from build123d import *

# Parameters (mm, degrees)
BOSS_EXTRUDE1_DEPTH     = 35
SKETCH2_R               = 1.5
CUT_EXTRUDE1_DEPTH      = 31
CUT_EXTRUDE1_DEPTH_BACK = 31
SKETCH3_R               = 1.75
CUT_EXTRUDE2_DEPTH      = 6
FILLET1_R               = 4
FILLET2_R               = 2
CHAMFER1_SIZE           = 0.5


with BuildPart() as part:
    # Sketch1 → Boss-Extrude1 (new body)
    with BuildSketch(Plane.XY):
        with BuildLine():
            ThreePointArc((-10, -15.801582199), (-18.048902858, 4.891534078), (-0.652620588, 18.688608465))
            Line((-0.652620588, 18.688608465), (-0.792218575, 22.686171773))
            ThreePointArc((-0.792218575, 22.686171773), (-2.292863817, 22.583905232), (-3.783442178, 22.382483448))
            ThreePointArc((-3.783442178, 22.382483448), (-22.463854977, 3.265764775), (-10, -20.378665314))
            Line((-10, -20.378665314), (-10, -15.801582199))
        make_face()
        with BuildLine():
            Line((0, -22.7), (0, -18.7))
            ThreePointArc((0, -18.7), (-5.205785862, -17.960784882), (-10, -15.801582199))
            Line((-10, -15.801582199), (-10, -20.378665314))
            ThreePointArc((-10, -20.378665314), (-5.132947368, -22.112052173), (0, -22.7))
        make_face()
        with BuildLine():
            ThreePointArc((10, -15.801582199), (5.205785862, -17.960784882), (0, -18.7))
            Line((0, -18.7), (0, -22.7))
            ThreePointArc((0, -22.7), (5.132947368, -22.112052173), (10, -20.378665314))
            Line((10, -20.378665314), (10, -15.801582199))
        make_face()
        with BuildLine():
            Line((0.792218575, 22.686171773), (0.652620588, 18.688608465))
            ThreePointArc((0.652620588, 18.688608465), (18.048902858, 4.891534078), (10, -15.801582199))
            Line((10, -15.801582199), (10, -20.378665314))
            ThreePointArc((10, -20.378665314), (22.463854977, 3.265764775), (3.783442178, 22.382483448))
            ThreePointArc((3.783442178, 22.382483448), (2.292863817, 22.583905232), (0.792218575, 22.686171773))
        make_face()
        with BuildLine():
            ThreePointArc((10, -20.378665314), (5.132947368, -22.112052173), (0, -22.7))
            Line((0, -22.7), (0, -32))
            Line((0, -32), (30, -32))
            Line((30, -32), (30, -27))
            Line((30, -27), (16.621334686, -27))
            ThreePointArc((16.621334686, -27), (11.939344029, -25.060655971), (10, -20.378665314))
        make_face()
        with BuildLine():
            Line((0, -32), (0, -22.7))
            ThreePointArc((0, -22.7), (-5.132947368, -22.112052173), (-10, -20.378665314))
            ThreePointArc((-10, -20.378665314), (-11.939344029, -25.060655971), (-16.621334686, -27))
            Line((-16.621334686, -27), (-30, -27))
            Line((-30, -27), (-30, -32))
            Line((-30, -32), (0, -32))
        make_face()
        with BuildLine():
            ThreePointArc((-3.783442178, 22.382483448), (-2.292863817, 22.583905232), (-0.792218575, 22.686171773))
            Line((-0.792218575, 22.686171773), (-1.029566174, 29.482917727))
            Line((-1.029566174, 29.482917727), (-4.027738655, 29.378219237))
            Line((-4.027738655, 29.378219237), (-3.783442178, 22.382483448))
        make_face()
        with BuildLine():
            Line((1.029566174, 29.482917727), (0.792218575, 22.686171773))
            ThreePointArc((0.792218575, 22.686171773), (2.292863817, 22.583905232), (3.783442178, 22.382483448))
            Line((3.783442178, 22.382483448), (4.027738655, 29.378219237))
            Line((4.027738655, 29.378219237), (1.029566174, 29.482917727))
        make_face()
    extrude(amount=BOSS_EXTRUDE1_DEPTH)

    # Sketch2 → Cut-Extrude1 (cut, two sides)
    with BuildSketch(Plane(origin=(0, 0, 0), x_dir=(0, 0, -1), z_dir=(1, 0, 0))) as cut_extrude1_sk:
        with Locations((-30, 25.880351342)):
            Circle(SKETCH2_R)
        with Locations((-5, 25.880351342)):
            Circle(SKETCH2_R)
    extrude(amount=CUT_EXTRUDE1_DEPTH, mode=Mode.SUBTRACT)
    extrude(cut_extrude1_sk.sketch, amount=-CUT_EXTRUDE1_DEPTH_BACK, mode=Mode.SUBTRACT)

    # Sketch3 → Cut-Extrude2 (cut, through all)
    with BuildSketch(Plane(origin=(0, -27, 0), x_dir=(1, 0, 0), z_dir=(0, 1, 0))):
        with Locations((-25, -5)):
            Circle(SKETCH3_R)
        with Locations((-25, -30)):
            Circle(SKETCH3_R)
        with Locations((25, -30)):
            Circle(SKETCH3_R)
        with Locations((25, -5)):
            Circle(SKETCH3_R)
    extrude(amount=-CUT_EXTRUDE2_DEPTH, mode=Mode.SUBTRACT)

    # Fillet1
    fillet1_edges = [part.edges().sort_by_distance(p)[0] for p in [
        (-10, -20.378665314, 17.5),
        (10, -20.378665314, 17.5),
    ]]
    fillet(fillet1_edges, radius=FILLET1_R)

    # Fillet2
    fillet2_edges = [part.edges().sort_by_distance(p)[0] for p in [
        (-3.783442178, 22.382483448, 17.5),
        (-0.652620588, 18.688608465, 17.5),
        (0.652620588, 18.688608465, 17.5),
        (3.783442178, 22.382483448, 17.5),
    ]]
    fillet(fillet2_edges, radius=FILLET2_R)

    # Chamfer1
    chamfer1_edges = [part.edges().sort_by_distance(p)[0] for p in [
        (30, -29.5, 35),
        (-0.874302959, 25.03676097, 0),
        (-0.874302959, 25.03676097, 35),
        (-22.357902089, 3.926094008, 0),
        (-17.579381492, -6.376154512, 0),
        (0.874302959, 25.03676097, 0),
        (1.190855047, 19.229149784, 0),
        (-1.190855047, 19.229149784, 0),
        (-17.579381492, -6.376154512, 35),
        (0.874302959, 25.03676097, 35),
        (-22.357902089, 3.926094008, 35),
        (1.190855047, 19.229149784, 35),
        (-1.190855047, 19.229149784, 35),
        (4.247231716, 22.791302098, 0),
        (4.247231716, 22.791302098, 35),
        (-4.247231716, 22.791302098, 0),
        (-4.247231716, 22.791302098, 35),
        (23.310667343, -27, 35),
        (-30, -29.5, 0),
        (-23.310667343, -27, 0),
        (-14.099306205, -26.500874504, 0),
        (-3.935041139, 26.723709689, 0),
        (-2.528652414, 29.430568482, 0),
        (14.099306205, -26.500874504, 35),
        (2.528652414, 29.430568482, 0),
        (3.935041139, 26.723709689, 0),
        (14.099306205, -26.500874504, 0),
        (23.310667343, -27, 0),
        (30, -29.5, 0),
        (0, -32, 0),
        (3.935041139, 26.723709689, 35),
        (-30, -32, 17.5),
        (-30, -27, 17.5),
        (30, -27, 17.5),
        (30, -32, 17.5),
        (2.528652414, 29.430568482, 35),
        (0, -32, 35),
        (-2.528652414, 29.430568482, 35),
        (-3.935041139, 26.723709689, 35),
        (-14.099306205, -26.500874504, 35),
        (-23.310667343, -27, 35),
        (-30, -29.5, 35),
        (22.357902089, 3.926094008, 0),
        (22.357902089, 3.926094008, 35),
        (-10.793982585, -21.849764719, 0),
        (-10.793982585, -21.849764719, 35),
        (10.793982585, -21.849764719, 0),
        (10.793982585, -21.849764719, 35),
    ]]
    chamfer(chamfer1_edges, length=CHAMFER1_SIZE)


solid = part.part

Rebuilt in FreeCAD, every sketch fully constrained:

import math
import FreeCAD as App
import Part
import Sketcher
from FreeCAD import Vector
Q = App.Units.Quantity


def edges_at(feature, points):
    """Names of the edges that pass closest to the given points."""
    edges = feature.Shape.Edges
    near = lambda p: min(range(len(edges)), key=lambda i: edges[i].distToShape(Part.Vertex(*p))[0])
    return sorted({f"Edge{near(p) + 1}" for p in points})

doc = App.newDocument("Part")
body = doc.addObject("PartDesign::Body", "Body")

sketch1 = doc.addObject("Sketcher::SketchObject", "Sketch")
body.addObject(sketch1)
sketch1.AttachmentSupport = (doc.XY_Plane, [""])
sketch1.MapMode = "FlatFace"
sketch1.addGeometry([
    Part.ArcOfCircle(Part.Circle(Vector(0, 0, 0), Vector(0, 0, 1), 18.7), math.radians(92), math.radians(237.672407)),
    Part.LineSegment(Vector(-0.652621, 18.688608, 0), Vector(-0.792219, 22.686172, 0)),
    Part.LineSegment(Vector(-0.792219, 22.686172, 0), Vector(-1.029566, 29.482918, 0)),
    Part.LineSegment(Vector(-1.029566, 29.482918, 0), Vector(-4.027739, 29.378219, 0)),
    Part.LineSegment(Vector(-4.027739, 29.378219, 0), Vector(-3.783442, 22.382483, 0)),
    Part.ArcOfCircle(Part.Circle(Vector(0, 0, 0), Vector(0, 0, 1), 22.7), math.radians(99.594347), math.radians(243.862385)),
    Part.ArcOfCircle(Part.Circle(Vector(-16.621335, -20.378665, 0), Vector(0, 0, 1), 6.621335), math.radians(-90), math.radians(0)),
    Part.LineSegment(Vector(-16.621335, -27, 0), Vector(-30, -27, 0)),
    Part.LineSegment(Vector(-30, -27, 0), Vector(-30, -32, 0)),
    Part.LineSegment(Vector(-30, -32, 0), Vector(30, -32, 0)),
    Part.LineSegment(Vector(30, -32, 0), Vector(30, -27, 0)),
    Part.LineSegment(Vector(30, -27, 0), Vector(16.621335, -27, 0)),
    Part.ArcOfCircle(Part.Circle(Vector(16.621335, -20.378665, 0), Vector(0, 0, 1), 6.621335), math.radians(180), math.radians(270)),
    Part.ArcOfCircle(Part.Circle(Vector(0, 0, 0), Vector(0, 0, 1), 22.7), math.radians(-63.862385), math.radians(80.405653)),
    Part.LineSegment(Vector(3.783442, 22.382483, 0), Vector(4.027739, 29.378219, 0)),
    Part.LineSegment(Vector(4.027739, 29.378219, 0), Vector(1.029566, 29.482918, 0)),
    Part.LineSegment(Vector(1.029566, 29.482918, 0), Vector(0.792219, 22.686172, 0)),
    Part.LineSegment(Vector(0.792219, 22.686172, 0), Vector(0.652621, 18.688608, 0)),
    Part.ArcOfCircle(Part.Circle(Vector(0, 0, 0), Vector(0, 0, 1), 18.7), math.radians(-57.672407), math.radians(88)),
    Part.ArcOfCircle(Part.Circle(Vector(0, 0, 0), Vector(0, 0, 1), 18.7), math.radians(-90), math.radians(-57.672407)),
    Part.ArcOfCircle(Part.Circle(Vector(0, 0, 0), Vector(0, 0, 1), 18.7), math.radians(-122.327593), math.radians(-90)),
], False)
sketch1.addConstraint([
    Sketcher.Constraint("Coincident", 0, 1, 1, 1),
    Sketcher.Constraint("Coincident", 1, 2, 2, 1),
    Sketcher.Constraint("Coincident", 2, 2, 3, 1),
    Sketcher.Constraint("Coincident", 3, 2, 4, 1),
    Sketcher.Constraint("Coincident", 4, 2, 5, 1),
    Sketcher.Constraint("Coincident", 5, 2, 6, 2),
    Sketcher.Constraint("Tangent", 6, 1, 7, 1),
    Sketcher.Constraint("Coincident", 7, 2, 8, 1),
    Sketcher.Constraint("Coincident", 8, 2, 9, 1),
    Sketcher.Constraint("Coincident", 9, 2, 10, 1),
    Sketcher.Constraint("Coincident", 10, 2, 11, 1),
    Sketcher.Constraint("Tangent", 11, 2, 12, 2),
    Sketcher.Constraint("Coincident", 12, 1, 13, 1),
    Sketcher.Constraint("Coincident", 13, 2, 14, 1),
    Sketcher.Constraint("Coincident", 14, 2, 15, 1),
    Sketcher.Constraint("Coincident", 15, 2, 16, 1),
    Sketcher.Constraint("Coincident", 16, 2, 17, 1),
    Sketcher.Constraint("Coincident", 17, 2, 18, 2),
    Sketcher.Constraint("Tangent", 18, 1, 19, 2),
    Sketcher.Constraint("Tangent", 19, 1, 20, 2),
    Sketcher.Constraint("Tangent", 20, 1, 0, 2),
    Sketcher.Constraint("Horizontal", 7),
    Sketcher.Constraint("Vertical", 8),
    Sketcher.Constraint("Horizontal", 9),
    Sketcher.Constraint("Vertical", 10),
    Sketcher.Constraint("Horizontal", 11),
    Sketcher.Constraint("Coincident", 0, 3, -1, 1),
    Sketcher.Constraint("Coincident", 5, 3, -1, 1),
    Sketcher.Constraint("Coincident", 13, 3, -1, 1),
    Sketcher.Constraint("Coincident", 18, 3, -1, 1),
    Sketcher.Constraint("Equal", 6, 12),
    Sketcher.Constraint("Equal", 5, 13),
    Sketcher.Constraint("Equal", 0, 18),
    Sketcher.Constraint("Symmetric", 6, 3, 12, 3, -2),
    Sketcher.Constraint("Symmetric", 3, 2, 14, 2, -2),
    Sketcher.Constraint("Symmetric", 2, 2, 15, 2, -2),
    Sketcher.Constraint("Symmetric", 1, 2, 16, 2, -2),
    Sketcher.Constraint("PointOnObject", 19, 1, -2),
    Sketcher.Constraint("Parallel", 1, 2),
    Sketcher.Constraint("Perpendicular", 2, 3),
    Sketcher.Constraint("Perpendicular", 3, 4),
    Sketcher.Constraint("Perpendicular", 14, 15),
    Sketcher.Constraint("Parallel", 16, 17),
    Sketcher.Constraint("Horizontal", 12, 3, 5, 2),
    Sketcher.Constraint("Horizontal", 18, 1, 20, 1),
    Sketcher.Constraint("Vertical", 12, 1, 18, 1),
    Sketcher.Constraint("Equal", 7, 11),
    Sketcher.Constraint("Radius", 0, 18.7),
    Sketcher.Constraint("Radius", 5, 22.7),
    Sketcher.Constraint("DistanceX", 9, 1, 9, 2, 60.0),
    Sketcher.Constraint("DistanceY", 8, 2, 8, 1, 5.0),
    Sketcher.Constraint("Angle", 1, Q("92 deg")),
    Sketcher.Constraint("Distance", 1, 4.0),
    Sketcher.Constraint("Distance", 3, 3.0),
    Sketcher.Constraint("Distance", 4, 7.0),
    Sketcher.Constraint("DistanceX", 5, 2, -1, 1, 10.0),
    Sketcher.Constraint("DistanceY", 6, 1, -1, 1, 27.0),
    Sketcher.Constraint("Distance", 2, 6.800889),
])
pad1 = doc.addObject("PartDesign::Pad", "Pad")
body.addObject(pad1)
pad1.Profile = sketch1
pad1.Length = 35

sketch2 = doc.addObject("Sketcher::SketchObject", "Sketch001")
body.addObject(sketch2)
sketch2.AttachmentSupport = (doc.YZ_Plane, [""])
sketch2.MapMode = "FlatFace"
sketch2.addGeometry([
    Part.Circle(Vector(25.880351, 30, 0), Vector(0, 0, 1), 1.5),
    Part.Circle(Vector(25.880351, 5, 0), Vector(0, 0, 1), 1.5),
], False)
sketch2.addConstraint([
    Sketcher.Constraint("Equal", 0, 1),
    Sketcher.Constraint("Vertical", 0, 3, 1, 3),
    Sketcher.Constraint("Diameter", 0, 3.0),
    Sketcher.Constraint("DistanceY", -1, 1, 0, 3, 30.0),
    Sketcher.Constraint("DistanceY", -1, 1, 1, 3, 5.0),
    Sketcher.Constraint("DistanceX", -1, 1, 0, 3, 25.880351),
])
pocket1 = doc.addObject("PartDesign::Pocket", "Pocket")
body.addObject(pocket1)
pocket1.Profile = sketch2
pocket1.Type = "ThroughAll"
pocket1.Midplane = True

sketch3 = doc.addObject("Sketcher::SketchObject", "Sketch002")
body.addObject(sketch3)
sketch3.AttachmentSupport = (doc.XZ_Plane, [""])
sketch3.MapMode = "FlatFace"
sketch3.AttachmentOffset = App.Placement(Vector(0, 0, 27), App.Rotation())
sketch3.addGeometry([
    Part.Circle(Vector(-25, 5, 0), Vector(0, 0, 1), 1.75),
    Part.Circle(Vector(-25, 30, 0), Vector(0, 0, 1), 1.75),
    Part.Circle(Vector(25, 30, 0), Vector(0, 0, 1), 1.75),
    Part.Circle(Vector(25, 5, 0), Vector(0, 0, 1), 1.75),
], False)
sketch3.addConstraint([
    Sketcher.Constraint("Equal", 0, 1),
    Sketcher.Constraint("Equal", 1, 2),
    Sketcher.Constraint("Equal", 2, 3),
    Sketcher.Constraint("Symmetric", 1, 3, 2, 3, -2),
    Sketcher.Constraint("Symmetric", 0, 3, 3, 3, -2),
    Sketcher.Constraint("Vertical", 0, 3, 1, 3),
    Sketcher.Constraint("Diameter", 0, 3.5),
    Sketcher.Constraint("DistanceX", 0, 3, -1, 1, 25.0),
    Sketcher.Constraint("DistanceY", -1, 1, 0, 3, 5.0),
    Sketcher.Constraint("DistanceY", -1, 1, 1, 3, 30.0),
])
pocket2 = doc.addObject("PartDesign::Pocket", "Pocket001")
body.addObject(pocket2)
pocket2.Profile = sketch3
pocket2.Type = "ThroughAll"
pocket2.Reversed = True
doc.recompute()

fillet = doc.addObject("PartDesign::Fillet", "Fillet")
body.addObject(fillet)
fillet.Base = (pocket2, edges_at(pocket2, [(-10, -20.379, 17.5), (10, -20.379, 17.5)]))
fillet.Radius = 4
doc.recompute()

fillet2 = doc.addObject("PartDesign::Fillet", "Fillet001")
body.addObject(fillet2)
fillet2.Base = (fillet, edges_at(fillet, [
    (-3.783, 22.382, 17.5),
    (-0.653, 18.689, 17.5),
    (0.653, 18.689, 17.5),
    (3.783, 22.382, 17.5),
]))
fillet2.Radius = 2
doc.recompute()

chamfer = doc.addObject("PartDesign::Chamfer", "Chamfer")
body.addObject(chamfer)
chamfer.Base = (fillet2, edges_at(fillet2, [
    (30, -29.5, 35),
    (-0.911, 26.085, 0),
    (-0.911, 26.085, 35),
    (-22.358, 3.926, 0),
    (-18.264, 4.013, 0),
    (0.911, 26.085, 0),
    (1.191, 19.229, 0),
    (-1.191, 19.229, 0),
    (-18.264, 4.013, 35),
    (0.911, 26.085, 35),
    (-22.358, 3.926, 35),
    (1.191, 19.229, 35),
    (-1.191, 19.229, 35),
    (4.247, 22.791, 0),
    (4.247, 22.791, 35),
    (-4.247, 22.791, 0),
    (-4.247, 22.791, 35),
    (23.311, -27, 35),
    (-30, -29.5, 0),
    (-23.311, -27, 0),
    (-14.099, -26.501, 0),
    (-3.935, 26.724, 0),
    (-2.529, 29.431, 0),
    (14.099, -26.501, 35),
    (2.529, 29.431, 0),
    (3.935, 26.724, 0),
    (14.099, -26.501, 0),
    (23.311, -27, 0),
    (30, -29.5, 0),
    (0, -32, 0),
    (3.935, 26.724, 35),
    (-30, -32, 17.5),
    (-30, -27, 17.5),
    (30, -27, 17.5),
    (30, -32, 17.5),
    (2.529, 29.431, 35),
    (0, -32, 35),
    (-2.529, 29.431, 35),
    (-3.935, 26.724, 35),
    (-14.099, -26.501, 35),
    (-23.311, -27, 35),
    (-30, -29.5, 35),
    (22.358, 3.926, 0),
    (22.358, 3.926, 35),
    (-10.794, -21.85, 0),
    (-10.794, -21.85, 35),
    (10.794, -21.85, 0),
    (10.794, -21.85, 35),
]))
chamfer.Size = 0.5

doc.recompute()
